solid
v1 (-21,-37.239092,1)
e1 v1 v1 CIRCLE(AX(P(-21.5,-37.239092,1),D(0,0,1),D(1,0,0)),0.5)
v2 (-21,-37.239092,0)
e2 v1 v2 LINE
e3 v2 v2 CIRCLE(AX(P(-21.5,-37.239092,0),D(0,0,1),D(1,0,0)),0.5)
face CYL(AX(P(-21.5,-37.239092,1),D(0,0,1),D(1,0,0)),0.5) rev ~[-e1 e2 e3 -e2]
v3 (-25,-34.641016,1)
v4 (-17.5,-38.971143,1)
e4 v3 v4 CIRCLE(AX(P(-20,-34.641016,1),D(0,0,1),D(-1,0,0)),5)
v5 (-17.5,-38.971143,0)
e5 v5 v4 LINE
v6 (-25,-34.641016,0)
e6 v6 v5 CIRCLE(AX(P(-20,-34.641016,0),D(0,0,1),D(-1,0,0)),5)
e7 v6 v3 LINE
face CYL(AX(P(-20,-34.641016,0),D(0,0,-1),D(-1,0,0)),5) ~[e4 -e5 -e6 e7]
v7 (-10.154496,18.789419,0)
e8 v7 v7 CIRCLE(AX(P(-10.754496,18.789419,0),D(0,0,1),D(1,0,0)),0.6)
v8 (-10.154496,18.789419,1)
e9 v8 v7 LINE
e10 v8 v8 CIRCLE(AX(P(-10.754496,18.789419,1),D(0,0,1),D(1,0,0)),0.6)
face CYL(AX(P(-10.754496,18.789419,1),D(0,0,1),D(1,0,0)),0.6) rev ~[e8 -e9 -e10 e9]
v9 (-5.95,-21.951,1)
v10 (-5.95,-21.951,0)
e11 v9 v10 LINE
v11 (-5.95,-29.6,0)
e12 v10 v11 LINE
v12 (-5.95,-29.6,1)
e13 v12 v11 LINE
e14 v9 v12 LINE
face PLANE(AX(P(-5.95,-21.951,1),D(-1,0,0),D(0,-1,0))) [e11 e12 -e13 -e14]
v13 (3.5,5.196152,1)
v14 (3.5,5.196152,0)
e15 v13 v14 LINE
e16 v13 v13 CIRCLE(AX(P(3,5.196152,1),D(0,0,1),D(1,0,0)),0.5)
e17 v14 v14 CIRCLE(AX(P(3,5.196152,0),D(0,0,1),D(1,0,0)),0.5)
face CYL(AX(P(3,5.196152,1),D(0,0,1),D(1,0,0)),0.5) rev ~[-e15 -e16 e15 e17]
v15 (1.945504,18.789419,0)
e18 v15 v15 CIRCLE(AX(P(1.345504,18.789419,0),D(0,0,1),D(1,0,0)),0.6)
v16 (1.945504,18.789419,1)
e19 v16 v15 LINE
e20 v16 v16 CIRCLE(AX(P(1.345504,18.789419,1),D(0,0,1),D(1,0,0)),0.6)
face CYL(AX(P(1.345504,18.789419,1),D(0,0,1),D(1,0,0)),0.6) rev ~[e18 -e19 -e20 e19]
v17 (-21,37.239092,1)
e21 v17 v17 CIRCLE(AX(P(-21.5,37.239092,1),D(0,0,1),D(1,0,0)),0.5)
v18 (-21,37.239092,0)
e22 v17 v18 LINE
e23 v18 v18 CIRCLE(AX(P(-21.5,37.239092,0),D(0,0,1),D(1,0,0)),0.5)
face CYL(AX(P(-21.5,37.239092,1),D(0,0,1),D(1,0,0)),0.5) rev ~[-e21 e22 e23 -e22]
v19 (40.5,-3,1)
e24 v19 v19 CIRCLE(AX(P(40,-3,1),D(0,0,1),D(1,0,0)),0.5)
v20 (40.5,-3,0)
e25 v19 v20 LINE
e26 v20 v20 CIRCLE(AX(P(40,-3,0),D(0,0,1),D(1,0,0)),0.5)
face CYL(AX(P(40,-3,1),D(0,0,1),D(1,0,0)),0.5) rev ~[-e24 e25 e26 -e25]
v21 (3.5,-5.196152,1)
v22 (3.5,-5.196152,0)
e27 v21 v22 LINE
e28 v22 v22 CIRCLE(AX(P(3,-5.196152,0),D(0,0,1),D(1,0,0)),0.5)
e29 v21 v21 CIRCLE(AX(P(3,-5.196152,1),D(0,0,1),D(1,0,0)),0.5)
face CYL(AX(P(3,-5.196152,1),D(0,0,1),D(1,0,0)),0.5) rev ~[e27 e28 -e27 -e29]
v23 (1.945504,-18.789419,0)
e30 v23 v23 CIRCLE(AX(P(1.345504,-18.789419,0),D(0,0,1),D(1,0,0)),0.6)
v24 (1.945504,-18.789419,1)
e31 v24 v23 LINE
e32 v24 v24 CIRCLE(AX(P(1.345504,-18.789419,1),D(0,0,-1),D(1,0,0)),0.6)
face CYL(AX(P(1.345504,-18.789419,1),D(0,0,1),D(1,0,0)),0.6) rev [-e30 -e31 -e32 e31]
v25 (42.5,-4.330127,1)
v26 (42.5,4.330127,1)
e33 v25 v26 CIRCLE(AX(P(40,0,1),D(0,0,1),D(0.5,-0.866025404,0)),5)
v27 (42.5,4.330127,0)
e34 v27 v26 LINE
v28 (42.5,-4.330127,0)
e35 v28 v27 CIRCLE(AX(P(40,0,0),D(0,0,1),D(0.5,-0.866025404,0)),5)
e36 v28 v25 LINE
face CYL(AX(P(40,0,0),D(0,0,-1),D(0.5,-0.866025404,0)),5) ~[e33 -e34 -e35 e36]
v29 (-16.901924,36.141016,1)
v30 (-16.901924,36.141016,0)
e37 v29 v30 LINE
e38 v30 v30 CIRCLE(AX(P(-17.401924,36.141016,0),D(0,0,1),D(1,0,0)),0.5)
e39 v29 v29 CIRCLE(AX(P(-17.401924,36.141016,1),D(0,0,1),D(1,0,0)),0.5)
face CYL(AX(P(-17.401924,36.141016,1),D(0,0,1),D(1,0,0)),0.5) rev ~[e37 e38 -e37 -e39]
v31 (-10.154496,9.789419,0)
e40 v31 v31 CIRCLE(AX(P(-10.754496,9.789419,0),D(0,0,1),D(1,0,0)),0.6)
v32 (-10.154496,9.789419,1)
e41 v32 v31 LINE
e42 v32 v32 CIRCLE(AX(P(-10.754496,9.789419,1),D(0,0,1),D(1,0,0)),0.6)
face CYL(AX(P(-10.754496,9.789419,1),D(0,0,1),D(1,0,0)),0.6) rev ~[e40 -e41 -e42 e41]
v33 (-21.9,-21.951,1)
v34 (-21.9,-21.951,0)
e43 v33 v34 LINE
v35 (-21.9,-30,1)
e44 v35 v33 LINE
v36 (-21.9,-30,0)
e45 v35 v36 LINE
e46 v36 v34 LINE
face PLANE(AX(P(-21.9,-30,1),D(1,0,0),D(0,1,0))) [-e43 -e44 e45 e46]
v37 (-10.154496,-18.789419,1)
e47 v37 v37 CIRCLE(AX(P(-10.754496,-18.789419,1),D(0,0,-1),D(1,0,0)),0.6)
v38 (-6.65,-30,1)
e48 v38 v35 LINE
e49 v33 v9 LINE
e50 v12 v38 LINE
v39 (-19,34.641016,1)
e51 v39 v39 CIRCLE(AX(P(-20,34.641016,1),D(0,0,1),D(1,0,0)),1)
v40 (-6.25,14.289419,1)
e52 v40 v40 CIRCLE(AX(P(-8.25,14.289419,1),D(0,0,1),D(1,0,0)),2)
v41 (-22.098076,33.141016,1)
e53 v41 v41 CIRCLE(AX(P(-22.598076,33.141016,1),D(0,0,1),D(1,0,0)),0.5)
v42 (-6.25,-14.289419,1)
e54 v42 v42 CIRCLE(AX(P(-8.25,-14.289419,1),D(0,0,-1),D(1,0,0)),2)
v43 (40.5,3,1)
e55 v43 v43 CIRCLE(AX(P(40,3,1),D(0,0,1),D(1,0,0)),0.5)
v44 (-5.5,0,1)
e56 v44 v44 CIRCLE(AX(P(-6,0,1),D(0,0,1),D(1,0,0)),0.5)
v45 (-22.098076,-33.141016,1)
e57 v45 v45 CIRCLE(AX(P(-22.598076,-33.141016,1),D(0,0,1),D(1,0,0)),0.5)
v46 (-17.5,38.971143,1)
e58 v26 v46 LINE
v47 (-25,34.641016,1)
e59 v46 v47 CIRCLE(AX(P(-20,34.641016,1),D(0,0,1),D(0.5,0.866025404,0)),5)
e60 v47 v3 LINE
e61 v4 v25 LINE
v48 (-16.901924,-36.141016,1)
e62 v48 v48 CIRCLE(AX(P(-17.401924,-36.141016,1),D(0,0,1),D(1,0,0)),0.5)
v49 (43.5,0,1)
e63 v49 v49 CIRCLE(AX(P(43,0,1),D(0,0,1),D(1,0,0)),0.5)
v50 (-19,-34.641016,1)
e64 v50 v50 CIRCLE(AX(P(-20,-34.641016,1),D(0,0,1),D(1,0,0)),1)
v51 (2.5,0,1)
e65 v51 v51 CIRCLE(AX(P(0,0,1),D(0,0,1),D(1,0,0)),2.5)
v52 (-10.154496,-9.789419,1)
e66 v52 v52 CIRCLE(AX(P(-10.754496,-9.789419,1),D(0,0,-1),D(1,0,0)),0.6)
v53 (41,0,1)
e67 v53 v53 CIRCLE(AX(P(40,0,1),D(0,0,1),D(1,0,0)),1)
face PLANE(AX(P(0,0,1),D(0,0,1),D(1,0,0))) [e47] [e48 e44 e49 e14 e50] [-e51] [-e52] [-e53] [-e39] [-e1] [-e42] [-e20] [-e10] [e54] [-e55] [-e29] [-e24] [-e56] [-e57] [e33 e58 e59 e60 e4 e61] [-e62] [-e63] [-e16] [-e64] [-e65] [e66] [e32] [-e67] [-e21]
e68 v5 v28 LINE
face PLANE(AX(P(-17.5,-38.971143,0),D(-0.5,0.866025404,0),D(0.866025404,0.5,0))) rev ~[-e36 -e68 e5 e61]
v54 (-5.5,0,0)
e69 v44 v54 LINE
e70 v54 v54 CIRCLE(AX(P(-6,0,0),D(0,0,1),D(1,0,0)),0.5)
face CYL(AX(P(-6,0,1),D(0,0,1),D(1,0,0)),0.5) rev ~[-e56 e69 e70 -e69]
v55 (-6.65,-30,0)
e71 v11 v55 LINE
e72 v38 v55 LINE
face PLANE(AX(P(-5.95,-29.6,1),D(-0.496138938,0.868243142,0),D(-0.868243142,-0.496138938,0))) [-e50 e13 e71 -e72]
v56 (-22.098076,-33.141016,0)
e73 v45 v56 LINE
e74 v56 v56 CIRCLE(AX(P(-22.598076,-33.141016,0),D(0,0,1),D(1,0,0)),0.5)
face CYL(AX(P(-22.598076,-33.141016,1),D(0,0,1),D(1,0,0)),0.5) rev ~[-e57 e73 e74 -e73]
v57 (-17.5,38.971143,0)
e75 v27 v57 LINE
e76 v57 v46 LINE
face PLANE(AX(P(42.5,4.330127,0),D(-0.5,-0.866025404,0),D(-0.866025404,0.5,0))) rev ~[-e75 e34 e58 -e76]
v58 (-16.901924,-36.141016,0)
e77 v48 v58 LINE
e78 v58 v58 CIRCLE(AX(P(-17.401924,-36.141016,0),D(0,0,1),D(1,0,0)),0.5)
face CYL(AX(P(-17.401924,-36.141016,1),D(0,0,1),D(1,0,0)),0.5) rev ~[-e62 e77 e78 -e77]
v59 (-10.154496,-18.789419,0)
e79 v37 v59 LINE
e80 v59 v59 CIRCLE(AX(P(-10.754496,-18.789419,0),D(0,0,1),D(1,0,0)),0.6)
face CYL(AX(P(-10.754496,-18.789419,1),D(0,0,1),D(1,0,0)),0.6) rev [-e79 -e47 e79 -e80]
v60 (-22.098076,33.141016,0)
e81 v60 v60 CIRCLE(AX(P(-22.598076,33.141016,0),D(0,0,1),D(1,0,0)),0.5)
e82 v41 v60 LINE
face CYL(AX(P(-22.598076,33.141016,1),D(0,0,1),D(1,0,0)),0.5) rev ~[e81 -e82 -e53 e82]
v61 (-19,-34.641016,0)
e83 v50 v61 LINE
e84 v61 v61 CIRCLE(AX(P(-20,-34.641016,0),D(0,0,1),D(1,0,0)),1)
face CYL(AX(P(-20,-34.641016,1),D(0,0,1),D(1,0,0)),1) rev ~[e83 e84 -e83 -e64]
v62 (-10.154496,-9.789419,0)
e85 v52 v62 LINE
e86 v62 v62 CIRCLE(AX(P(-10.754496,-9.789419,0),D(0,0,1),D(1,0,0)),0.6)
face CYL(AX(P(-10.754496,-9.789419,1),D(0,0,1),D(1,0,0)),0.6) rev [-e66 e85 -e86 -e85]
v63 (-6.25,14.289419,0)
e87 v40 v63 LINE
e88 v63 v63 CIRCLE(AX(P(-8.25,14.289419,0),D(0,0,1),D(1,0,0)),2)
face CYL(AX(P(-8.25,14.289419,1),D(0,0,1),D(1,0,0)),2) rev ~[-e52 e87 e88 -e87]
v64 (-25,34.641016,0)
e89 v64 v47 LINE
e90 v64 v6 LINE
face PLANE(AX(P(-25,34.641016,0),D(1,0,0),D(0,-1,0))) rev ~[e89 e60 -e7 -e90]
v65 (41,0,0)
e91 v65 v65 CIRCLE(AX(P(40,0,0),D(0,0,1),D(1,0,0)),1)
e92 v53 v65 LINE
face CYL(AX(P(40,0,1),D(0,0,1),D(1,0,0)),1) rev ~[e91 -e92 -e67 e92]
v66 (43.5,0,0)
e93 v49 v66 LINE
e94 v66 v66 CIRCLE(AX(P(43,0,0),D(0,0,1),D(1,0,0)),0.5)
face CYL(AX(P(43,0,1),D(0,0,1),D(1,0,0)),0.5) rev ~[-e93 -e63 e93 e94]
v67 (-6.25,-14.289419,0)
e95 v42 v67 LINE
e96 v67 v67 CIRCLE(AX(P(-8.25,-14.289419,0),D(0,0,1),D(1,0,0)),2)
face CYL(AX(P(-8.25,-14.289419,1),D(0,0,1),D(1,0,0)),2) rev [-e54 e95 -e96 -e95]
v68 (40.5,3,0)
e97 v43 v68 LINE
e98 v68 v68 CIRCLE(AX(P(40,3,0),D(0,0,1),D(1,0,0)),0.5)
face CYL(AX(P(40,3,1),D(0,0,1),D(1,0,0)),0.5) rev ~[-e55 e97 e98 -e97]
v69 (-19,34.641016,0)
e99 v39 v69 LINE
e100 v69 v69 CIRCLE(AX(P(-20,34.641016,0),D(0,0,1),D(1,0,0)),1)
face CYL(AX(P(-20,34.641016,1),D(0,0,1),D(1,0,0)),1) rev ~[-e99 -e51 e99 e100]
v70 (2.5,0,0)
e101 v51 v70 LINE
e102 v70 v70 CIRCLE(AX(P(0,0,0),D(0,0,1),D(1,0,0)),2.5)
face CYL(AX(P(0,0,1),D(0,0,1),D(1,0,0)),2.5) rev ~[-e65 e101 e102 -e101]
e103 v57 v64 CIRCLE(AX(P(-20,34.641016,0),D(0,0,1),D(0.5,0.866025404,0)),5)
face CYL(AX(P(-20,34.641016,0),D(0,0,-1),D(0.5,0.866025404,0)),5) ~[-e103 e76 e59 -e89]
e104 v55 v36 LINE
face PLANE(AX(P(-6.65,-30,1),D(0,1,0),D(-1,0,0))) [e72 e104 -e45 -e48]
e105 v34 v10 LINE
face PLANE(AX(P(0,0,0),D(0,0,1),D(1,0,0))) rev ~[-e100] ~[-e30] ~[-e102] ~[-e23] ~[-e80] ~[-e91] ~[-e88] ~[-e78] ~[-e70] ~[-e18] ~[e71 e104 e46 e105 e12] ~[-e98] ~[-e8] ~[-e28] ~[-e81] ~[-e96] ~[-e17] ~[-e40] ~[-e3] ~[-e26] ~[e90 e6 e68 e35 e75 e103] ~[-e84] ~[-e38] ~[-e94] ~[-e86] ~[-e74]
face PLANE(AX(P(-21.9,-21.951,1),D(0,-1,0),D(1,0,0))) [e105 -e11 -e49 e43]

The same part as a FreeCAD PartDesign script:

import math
import FreeCAD as App
import Part
import Sketcher
from FreeCAD import Vector
Q = App.Units.Quantity

doc = App.newDocument("Part")
body = doc.addObject("PartDesign::Body", "Body")

# Sketch on XY plane
sketch1 = doc.addObject("Sketcher::SketchObject", "Sketch")
body.addObject(sketch1)
sketch1.AttachmentSupport = (doc.XY_Plane, [""])
sketch1.MapMode = "FlatFace"
sketch1.addGeometry(Part.LineSegment(Vector(42, 4, 0), Vector(-18, 39, 0)), False)
sketch1.addGeometry(Part.ArcOfCircle(Part.Circle(Vector(-20, 35, 0), Vector(0, 0, 1), 5), math.radians(60), math.radians(180)), False)
sketch1.addGeometry(Part.LineSegment(Vector(-25, 35, 0), Vector(-25, -35, 0)), False)
sketch1.addGeometry(Part.ArcOfCircle(Part.Circle(Vector(-20, -35, 0), Vector(0, 0, 1), 5), math.radians(180), math.radians(300)), False)
sketch1.addGeometry(Part.LineSegment(Vector(-18, -39, 0), Vector(42, -4, 0)), False)
sketch1.addGeometry(Part.ArcOfCircle(Part.Circle(Vector(40, 0, 0), Vector(0, 0, 1), 5), math.radians(-60), math.radians(60)), False)
sketch1.addConstraint(Sketcher.Constraint("Tangent", 0, 2, 1, 1))
sketch1.addConstraint(Sketcher.Constraint("Tangent", 1, 2, 2, 1))
sketch1.addConstraint(Sketcher.Constraint("Tangent", 2, 2, 3, 1))
sketch1.addConstraint(Sketcher.Constraint("Tangent", 3, 2, 4, 1))
sketch1.addConstraint(Sketcher.Constraint("Tangent", 4, 2, 5, 1))
sketch1.addConstraint(Sketcher.Constraint("Tangent", 5, 2, 0, 1))
sketch1.addConstraint(Sketcher.Constraint("Vertical", 2))
sketch1.addConstraint(Sketcher.Constraint("Equal", 1, 3))
sketch1.addConstraint(Sketcher.Constraint("Equal", 3, 5))
sketch1.addConstraint(Sketcher.Constraint("Symmetric", 0, 2, 3, 2, -1))
sketch1.addConstraint(Sketcher.Constraint("Radius", 1, Q("5 mm")))
sketch1.addConstraint(Sketcher.Constraint("Angle", 0, Q("150 deg")))
sketch1.addConstraint(Sketcher.Constraint("DistanceX", 1, 3, -1, 1, Q("20 mm")))
sketch1.addConstraint(Sketcher.Constraint("DistanceX", -1, 1, 5, 3, Q("40 mm")))
pad1 = doc.addObject("PartDesign::Pad", "Pad")
body.addObject(pad1)
pad1.Profile = sketch1
pad1.Length = 1

# Sketch on XY plane
sketch2 = doc.addObject("Sketcher::SketchObject", "Sketch001")
body.addObject(sketch2)
sketch2.AttachmentSupport = (doc.XY_Plane, [""])
sketch2.MapMode = "FlatFace"
sketch2.AttachmentOffset = App.Placement(Vector(0, 0, 1), App.Rotation())
sketch2.addGeometry(Part.LineSegment(Vector(-21.9, -30, 0), Vector(-6.7, -30, 0)), False)
sketch2.addGeometry(Part.LineSegment(Vector(-6.7, -30, 0), Vector(-6, -29.6, 0)), False)
sketch2.addGeometry(Part.LineSegment(Vector(-6, -29.6, 0), Vector(-6, -22, 0)), False)
sketch2.addGeometry(Part.LineSegment(Vector(-6, -22, 0), Vector(-21.9, -22, 0)), False)
sketch2.addGeometry(Part.LineSegment(Vector(-21.9, -22, 0), Vector(-21.9, -30, 0)), False)
sketch2.addConstraint(Sketcher.Constraint("Coincident", 0, 2, 1, 1))
sketch2.addConstraint(Sketcher.Constraint("Coincident", 1, 2, 2, 1))
sketch2.addConstraint(Sketcher.Constraint("Coincident", 2, 2, 3, 1))
sketch2.addConstraint(Sketcher.Constraint("Coincident", 3, 2, 4, 1))
sketch2.addConstraint(Sketcher.Constraint("Coincident", 4, 2, 0, 1))
sketch2.addConstraint(Sketcher.Constraint("Horizontal", 0))
sketch2.addConstraint(Sketcher.Constraint("Vertical", 2))
sketch2.addConstraint(Sketcher.Constraint("Horizontal", 3))
sketch2.addConstraint(Sketcher.Constraint("Vertical", 4))
sketch2.addConstraint(Sketcher.Constraint("DistanceY", 0, 2, -1, 1, Q("30 mm")))
sketch2.addConstraint(Sketcher.Constraint("DistanceX", 0, 1, 0, 2, Q("15.25 mm")))
sketch2.addConstraint(Sketcher.Constraint("DistanceX", 3, 2, 3, 1, Q("15.95 mm")))
sketch2.addConstraint(Sketcher.Constraint("DistanceY", 1, 2, -1, 1, Q("29.6 mm")))
sketch2.addConstraint(Sketcher.Constraint("DistanceX", 3, 2, -1, 1, Q("21.9 mm")))
sketch2.addConstraint(Sketcher.Constraint("DistanceY", 2, 1, 2, 2, Q("7.649 mm")))
pocket1 = doc.addObject("PartDesign::Pocket", "Pocket")
body.addObject(pocket1)
pocket1.Profile = sketch2
pocket1.Type = "ThroughAll"

# Sketch on XY plane
sketch3 = doc.addObject("Sketcher::SketchObject", "Sketch002")
body.addObject(sketch3)
sketch3.AttachmentSupport = (doc.XY_Plane, [""])
sketch3.MapMode = "FlatFace"
sketch3.AttachmentOffset = App.Placement(Vector(0, 0, 1), App.Rotation())
sketch3.addGeometry(Part.Circle(Vector(-6, 0, 0), Vector(0, 0, 1), 0.5), False)
sketch3.addGeometry(Part.Circle(Vector(3, 5.2, 0), Vector(0, 0, 1), 0.5), False)
sketch3.addGeometry(Part.Circle(Vector(3, -5.2, 0), Vector(0, 0, 1), 0.5), False)
sketch3.addGeometry(Part.Circle(Vector(0, 0, 0), Vector(0, 0, 1), 2.5), False)
sketch3.addConstraint(Sketcher.Constraint("Coincident", 3, 3, -1, 1))
sketch3.addConstraint(Sketcher.Constraint("Equal", 0, 1))
sketch3.addConstraint(Sketcher.Constraint("Equal", 1, 2))
sketch3.addConstraint(Sketcher.Constraint("Symmetric", 1, 3, 2, 3, -1))
sketch3.addConstraint(Sketcher.Constraint("PointOnObject", 0, 3, -1))
sketch3.addConstraint(Sketcher.Constraint("Diameter", 0, Q("1 mm")))
sketch3.addConstraint(Sketcher.Constraint("Diameter", 3, Q("5 mm")))
sketch3.addConstraint(Sketcher.Constraint("DistanceX", 0, 3, -1, 1, Q("6 mm")))
sketch3.addConstraint(Sketcher.Constraint("DistanceX", -1, 1, 1, 3, Q("3 mm")))
sketch3.addConstraint(Sketcher.Constraint("DistanceY", -1, 1, 1, 3, Q("5.196152 mm")))
pocket2 = doc.addObject("PartDesign::Pocket", "Pocket001")
body.addObject(pocket2)
pocket2.Profile = sketch3
pocket2.Type = "ThroughAll"

# Sketch on XY plane
sketch4 = doc.addObject("Sketcher::SketchObject", "Sketch003")
body.addObject(sketch4)
sketch4.AttachmentSupport = (doc.XY_Plane, [""])
sketch4.MapMode = "FlatFace"
sketch4.AttachmentOffset = App.Placement(Vector(0, 0, 1), App.Rotation())
sketch4.addGeometry(Part.Circle(Vector(40, 0, 0), Vector(0, 0, 1), 1), False)
sketch4.addGeometry(Part.Circle(Vector(-20, -34.6, 0), Vector(0, 0, 1), 1), False)
sketch4.addGeometry(Part.Circle(Vector(-20, 34.6, 0), Vector(0, 0, 1), 1), False)
sketch4.addConstraint(Sketcher.Constraint("Equal", 0, 1))
sketch4.addConstraint(Sketcher.Constraint("Equal", 1, 2))
sketch4.addConstraint(Sketcher.Constraint("Symmetric", 1, 3, 2, 3, -1))
sketch4.addConstraint(Sketcher.Constraint("PointOnObject", 0, 3, -1))
sketch4.addConstraint(Sketcher.Constraint("Diameter", 0, Q("2 mm")))
sketch4.addConstraint(Sketcher.Constraint("DistanceX", -1, 1, 0, 3, Q("40 mm")))
sketch4.addConstraint(Sketcher.Constraint("DistanceX", 1, 3, -1, 1, Q("20 mm")))
sketch4.addConstraint(Sketcher.Constraint("DistanceY", 1, 3, -1, 1, Q("34.641016 mm")))
pocket3 = doc.addObject("PartDesign::Pocket", "Pocket002")
body.addObject(pocket3)
pocket3.Profile = sketch4
pocket3.Type = "ThroughAll"

# Sketch on XY plane
sketch5 = doc.addObject("Sketcher::SketchObject", "Sketch004")
body.addObject(sketch5)
sketch5.AttachmentSupport = (doc.XY_Plane, [""])
sketch5.MapMode = "FlatFace"
sketch5.AttachmentOffset = App.Placement(Vector(0, 0, 1), App.Rotation())
sketch5.addGeometry(Part.Circle(Vector(40, 3, 0), Vector(0, 0, 1), 0.5), False)
sketch5.addGeometry(Part.Circle(Vector(40, -3, 0), Vector(0, 0, 1), 0.5), False)
sketch5.addGeometry(Part.Circle(Vector(-22.6, -33.1, 0), Vector(0, 0, 1), 0.5), False)
sketch5.addGeometry(Part.Circle(Vector(-17.4, -36.1, 0), Vector(0, 0, 1), 0.5), False)
sketch5.addGeometry(Part.Circle(Vector(-17.4, 36.1, 0), Vector(0, 0, 1), 0.5), False)
sketch5.addGeometry(Part.Circle(Vector(-22.6, 33.1, 0), Vector(0, 0, 1), 0.5), False)
sketch5.addGeometry(Part.Circle(Vector(43, 0, 0), Vector(0, 0, 1), 0.5), False)
sketch5.addGeometry(Part.Circle(Vector(-21.5, -37.2, 0), Vector(0, 0, 1), 0.5), False)
sketch5.addGeometry(Part.Circle(Vector(-21.5, 37.2, 0), Vector(0, 0, 1), 0.5), False)
sketch5.addConstraint(Sketcher.Constraint("Equal", 0, 1))
sketch5.addConstraint(Sketcher.Constraint("Equal", 1, 2))
sketch5.addConstraint(Sketcher.Constraint("Equal", 2, 3))
sketch5.addConstraint(Sketcher.Constraint("Equal", 3, 4))
sketch5.addConstraint(Sketcher.Constraint("Equal", 4, 5))
sketch5.addConstraint(Sketcher.Constraint("Equal", 5, 6))
sketch5.addConstraint(Sketcher.Constraint("Equal", 6, 7))
sketch5.addConstraint(Sketcher.Constraint("Equal", 7, 8))
sketch5.addConstraint(Sketcher.Constraint("Symmetric", 0, 3, 1, 3, -1))
sketch5.addConstraint(Sketcher.Constraint("Symmetric", 3, 3, 4, 3, -1))
sketch5.addConstraint(Sketcher.Constraint("Symmetric", 2, 3, 5, 3, -1))
sketch5.addConstraint(Sketcher.Constraint("Symmetric", 7, 3, 8, 3, -1))
sketch5.addConstraint(Sketcher.Constraint("PointOnObject", 6, 3, -1))
sketch5.addConstraint(Sketcher.Constraint("Diameter", 0, Q("1 mm")))
sketch5.addConstraint(Sketcher.Constraint("DistanceX", -1, 1, 0, 3, Q("40 mm")))
sketch5.addConstraint(Sketcher.Constraint("DistanceY", -1, 1, 0, 3, Q("3 mm")))
sketch5.addConstraint(Sketcher.Constraint("DistanceX", -1, 1, 6, 3, Q("43 mm")))
sketch5.addConstraint(Sketcher.Constraint("DistanceY", 3, 3, 2, 3, Q("3 mm")))
sketch5.addConstraint(Sketcher.Constraint("DistanceX", 7, 3, -1, 1, Q("21.5 mm")))
sketch5.addConstraint(Sketcher.Constraint("DistanceY", 7, 3, 5, 3, Q("70.380109 mm")))
sketch5.addConstraint(Sketcher.Constraint("DistanceX", 2, 3, -1, 1, Q("22.598076 mm")))
sketch5.addConstraint(Sketcher.Constraint("DistanceY", 2, 3, -1, 1, Q("33.141016 mm")))
sketch5.addConstraint(Sketcher.Constraint("DistanceX", 3, 3, -1, 1, Q("17.401924 mm")))
pocket4 = doc.addObject("PartDesign::Pocket", "Pocket003")
body.addObject(pocket4)
pocket4.Profile = sketch5
pocket4.Type = "ThroughAll"

# Sketch on XY plane
sketch6 = doc.addObject("Sketcher::SketchObject", "Sketch005")
body.addObject(sketch6)
sketch6.AttachmentSupport = (doc.XY_Plane, [""])
sketch6.MapMode = "FlatFace"
sketch6.AttachmentOffset = App.Placement(Vector(0, 0, 1), App.Rotation())
sketch6.addGeometry(Part.Circle(Vector(-8.2, 14.3, 0), Vector(0, 0, 1), 2), False)
sketch6.addConstraint(Sketcher.Constraint("Diameter", 0, Q("4 mm")))
sketch6.addConstraint(Sketcher.Constraint("DistanceX", 0, 3, -1, 1, Q("8.25 mm")))
sketch6.addConstraint(Sketcher.Constraint("DistanceY", -1, 1, 0, 3, Q("14.289419 mm")))
pocket5 = doc.addObject("PartDesign::Pocket", "Pocket004")
body.addObject(pocket5)
pocket5.Profile = sketch6
pocket5.Type = "ThroughAll"

# Sketch on XY plane
sketch7 = doc.addObject("Sketcher::SketchObject", "Sketch006")
body.addObject(sketch7)
sketch7.AttachmentSupport = (doc.XY_Plane, [""])
sketch7.MapMode = "FlatFace"
sketch7.AttachmentOffset = App.Placement(Vector(0, 0, 1), App.Rotation())
sketch7.addGeometry(Part.Circle(Vector(-10.8, 18.8, 0), Vector(0, 0, 1), 0.6), False)
sketch7.addGeometry(Part.Circle(Vector(-10.8, 9.8, 0), Vector(0, 0, 1), 0.6), False)
sketch7.addGeometry(Part.Circle(Vector(1.3, 18.8, 0), Vector(0, 0, 1), 0.6), False)
sketch7.addConstraint(Sketcher.Constraint("Equal", 0, 1))
sketch7.addConstraint(Sketcher.Constraint("Equal", 1, 2))
sketch7.addConstraint(Sketcher.Constraint("Horizontal", 0, 3, 2, 3))
sketch7.addConstraint(Sketcher.Constraint("Vertical", 0, 3, 1, 3))
sketch7.addConstraint(Sketcher.Constraint("Diameter", 0, Q("1.2 mm")))
sketch7.addConstraint(Sketcher.Constraint("DistanceY", 1, 3, 0, 3, Q("9 mm")))
sketch7.addConstraint(Sketcher.Constraint("DistanceX", 0, 3, 2, 3, Q("12.1 mm")))
sketch7.addConstraint(Sketcher.Constraint("DistanceY", -1, 1, 0, 3, Q("18.789419 mm")))
sketch7.addConstraint(Sketcher.Constraint("DistanceX", 0, 3, -1, 1, Q("10.754496 mm")))
pocket6 = doc.addObject("PartDesign::Pocket", "Pocket005")
body.addObject(pocket6)
pocket6.Profile = sketch7
pocket6.Type = "ThroughAll"
doc.recompute()

mirrored = doc.addObject("PartDesign::Mirrored", "Mirrored")
body.addObject(mirrored)
mirrored.Originals = [pocket5, pocket6]
mirrored.MirrorPlane = (doc.XZ_Plane, [""])
body.Tip = mirrored

doc.recompute()
